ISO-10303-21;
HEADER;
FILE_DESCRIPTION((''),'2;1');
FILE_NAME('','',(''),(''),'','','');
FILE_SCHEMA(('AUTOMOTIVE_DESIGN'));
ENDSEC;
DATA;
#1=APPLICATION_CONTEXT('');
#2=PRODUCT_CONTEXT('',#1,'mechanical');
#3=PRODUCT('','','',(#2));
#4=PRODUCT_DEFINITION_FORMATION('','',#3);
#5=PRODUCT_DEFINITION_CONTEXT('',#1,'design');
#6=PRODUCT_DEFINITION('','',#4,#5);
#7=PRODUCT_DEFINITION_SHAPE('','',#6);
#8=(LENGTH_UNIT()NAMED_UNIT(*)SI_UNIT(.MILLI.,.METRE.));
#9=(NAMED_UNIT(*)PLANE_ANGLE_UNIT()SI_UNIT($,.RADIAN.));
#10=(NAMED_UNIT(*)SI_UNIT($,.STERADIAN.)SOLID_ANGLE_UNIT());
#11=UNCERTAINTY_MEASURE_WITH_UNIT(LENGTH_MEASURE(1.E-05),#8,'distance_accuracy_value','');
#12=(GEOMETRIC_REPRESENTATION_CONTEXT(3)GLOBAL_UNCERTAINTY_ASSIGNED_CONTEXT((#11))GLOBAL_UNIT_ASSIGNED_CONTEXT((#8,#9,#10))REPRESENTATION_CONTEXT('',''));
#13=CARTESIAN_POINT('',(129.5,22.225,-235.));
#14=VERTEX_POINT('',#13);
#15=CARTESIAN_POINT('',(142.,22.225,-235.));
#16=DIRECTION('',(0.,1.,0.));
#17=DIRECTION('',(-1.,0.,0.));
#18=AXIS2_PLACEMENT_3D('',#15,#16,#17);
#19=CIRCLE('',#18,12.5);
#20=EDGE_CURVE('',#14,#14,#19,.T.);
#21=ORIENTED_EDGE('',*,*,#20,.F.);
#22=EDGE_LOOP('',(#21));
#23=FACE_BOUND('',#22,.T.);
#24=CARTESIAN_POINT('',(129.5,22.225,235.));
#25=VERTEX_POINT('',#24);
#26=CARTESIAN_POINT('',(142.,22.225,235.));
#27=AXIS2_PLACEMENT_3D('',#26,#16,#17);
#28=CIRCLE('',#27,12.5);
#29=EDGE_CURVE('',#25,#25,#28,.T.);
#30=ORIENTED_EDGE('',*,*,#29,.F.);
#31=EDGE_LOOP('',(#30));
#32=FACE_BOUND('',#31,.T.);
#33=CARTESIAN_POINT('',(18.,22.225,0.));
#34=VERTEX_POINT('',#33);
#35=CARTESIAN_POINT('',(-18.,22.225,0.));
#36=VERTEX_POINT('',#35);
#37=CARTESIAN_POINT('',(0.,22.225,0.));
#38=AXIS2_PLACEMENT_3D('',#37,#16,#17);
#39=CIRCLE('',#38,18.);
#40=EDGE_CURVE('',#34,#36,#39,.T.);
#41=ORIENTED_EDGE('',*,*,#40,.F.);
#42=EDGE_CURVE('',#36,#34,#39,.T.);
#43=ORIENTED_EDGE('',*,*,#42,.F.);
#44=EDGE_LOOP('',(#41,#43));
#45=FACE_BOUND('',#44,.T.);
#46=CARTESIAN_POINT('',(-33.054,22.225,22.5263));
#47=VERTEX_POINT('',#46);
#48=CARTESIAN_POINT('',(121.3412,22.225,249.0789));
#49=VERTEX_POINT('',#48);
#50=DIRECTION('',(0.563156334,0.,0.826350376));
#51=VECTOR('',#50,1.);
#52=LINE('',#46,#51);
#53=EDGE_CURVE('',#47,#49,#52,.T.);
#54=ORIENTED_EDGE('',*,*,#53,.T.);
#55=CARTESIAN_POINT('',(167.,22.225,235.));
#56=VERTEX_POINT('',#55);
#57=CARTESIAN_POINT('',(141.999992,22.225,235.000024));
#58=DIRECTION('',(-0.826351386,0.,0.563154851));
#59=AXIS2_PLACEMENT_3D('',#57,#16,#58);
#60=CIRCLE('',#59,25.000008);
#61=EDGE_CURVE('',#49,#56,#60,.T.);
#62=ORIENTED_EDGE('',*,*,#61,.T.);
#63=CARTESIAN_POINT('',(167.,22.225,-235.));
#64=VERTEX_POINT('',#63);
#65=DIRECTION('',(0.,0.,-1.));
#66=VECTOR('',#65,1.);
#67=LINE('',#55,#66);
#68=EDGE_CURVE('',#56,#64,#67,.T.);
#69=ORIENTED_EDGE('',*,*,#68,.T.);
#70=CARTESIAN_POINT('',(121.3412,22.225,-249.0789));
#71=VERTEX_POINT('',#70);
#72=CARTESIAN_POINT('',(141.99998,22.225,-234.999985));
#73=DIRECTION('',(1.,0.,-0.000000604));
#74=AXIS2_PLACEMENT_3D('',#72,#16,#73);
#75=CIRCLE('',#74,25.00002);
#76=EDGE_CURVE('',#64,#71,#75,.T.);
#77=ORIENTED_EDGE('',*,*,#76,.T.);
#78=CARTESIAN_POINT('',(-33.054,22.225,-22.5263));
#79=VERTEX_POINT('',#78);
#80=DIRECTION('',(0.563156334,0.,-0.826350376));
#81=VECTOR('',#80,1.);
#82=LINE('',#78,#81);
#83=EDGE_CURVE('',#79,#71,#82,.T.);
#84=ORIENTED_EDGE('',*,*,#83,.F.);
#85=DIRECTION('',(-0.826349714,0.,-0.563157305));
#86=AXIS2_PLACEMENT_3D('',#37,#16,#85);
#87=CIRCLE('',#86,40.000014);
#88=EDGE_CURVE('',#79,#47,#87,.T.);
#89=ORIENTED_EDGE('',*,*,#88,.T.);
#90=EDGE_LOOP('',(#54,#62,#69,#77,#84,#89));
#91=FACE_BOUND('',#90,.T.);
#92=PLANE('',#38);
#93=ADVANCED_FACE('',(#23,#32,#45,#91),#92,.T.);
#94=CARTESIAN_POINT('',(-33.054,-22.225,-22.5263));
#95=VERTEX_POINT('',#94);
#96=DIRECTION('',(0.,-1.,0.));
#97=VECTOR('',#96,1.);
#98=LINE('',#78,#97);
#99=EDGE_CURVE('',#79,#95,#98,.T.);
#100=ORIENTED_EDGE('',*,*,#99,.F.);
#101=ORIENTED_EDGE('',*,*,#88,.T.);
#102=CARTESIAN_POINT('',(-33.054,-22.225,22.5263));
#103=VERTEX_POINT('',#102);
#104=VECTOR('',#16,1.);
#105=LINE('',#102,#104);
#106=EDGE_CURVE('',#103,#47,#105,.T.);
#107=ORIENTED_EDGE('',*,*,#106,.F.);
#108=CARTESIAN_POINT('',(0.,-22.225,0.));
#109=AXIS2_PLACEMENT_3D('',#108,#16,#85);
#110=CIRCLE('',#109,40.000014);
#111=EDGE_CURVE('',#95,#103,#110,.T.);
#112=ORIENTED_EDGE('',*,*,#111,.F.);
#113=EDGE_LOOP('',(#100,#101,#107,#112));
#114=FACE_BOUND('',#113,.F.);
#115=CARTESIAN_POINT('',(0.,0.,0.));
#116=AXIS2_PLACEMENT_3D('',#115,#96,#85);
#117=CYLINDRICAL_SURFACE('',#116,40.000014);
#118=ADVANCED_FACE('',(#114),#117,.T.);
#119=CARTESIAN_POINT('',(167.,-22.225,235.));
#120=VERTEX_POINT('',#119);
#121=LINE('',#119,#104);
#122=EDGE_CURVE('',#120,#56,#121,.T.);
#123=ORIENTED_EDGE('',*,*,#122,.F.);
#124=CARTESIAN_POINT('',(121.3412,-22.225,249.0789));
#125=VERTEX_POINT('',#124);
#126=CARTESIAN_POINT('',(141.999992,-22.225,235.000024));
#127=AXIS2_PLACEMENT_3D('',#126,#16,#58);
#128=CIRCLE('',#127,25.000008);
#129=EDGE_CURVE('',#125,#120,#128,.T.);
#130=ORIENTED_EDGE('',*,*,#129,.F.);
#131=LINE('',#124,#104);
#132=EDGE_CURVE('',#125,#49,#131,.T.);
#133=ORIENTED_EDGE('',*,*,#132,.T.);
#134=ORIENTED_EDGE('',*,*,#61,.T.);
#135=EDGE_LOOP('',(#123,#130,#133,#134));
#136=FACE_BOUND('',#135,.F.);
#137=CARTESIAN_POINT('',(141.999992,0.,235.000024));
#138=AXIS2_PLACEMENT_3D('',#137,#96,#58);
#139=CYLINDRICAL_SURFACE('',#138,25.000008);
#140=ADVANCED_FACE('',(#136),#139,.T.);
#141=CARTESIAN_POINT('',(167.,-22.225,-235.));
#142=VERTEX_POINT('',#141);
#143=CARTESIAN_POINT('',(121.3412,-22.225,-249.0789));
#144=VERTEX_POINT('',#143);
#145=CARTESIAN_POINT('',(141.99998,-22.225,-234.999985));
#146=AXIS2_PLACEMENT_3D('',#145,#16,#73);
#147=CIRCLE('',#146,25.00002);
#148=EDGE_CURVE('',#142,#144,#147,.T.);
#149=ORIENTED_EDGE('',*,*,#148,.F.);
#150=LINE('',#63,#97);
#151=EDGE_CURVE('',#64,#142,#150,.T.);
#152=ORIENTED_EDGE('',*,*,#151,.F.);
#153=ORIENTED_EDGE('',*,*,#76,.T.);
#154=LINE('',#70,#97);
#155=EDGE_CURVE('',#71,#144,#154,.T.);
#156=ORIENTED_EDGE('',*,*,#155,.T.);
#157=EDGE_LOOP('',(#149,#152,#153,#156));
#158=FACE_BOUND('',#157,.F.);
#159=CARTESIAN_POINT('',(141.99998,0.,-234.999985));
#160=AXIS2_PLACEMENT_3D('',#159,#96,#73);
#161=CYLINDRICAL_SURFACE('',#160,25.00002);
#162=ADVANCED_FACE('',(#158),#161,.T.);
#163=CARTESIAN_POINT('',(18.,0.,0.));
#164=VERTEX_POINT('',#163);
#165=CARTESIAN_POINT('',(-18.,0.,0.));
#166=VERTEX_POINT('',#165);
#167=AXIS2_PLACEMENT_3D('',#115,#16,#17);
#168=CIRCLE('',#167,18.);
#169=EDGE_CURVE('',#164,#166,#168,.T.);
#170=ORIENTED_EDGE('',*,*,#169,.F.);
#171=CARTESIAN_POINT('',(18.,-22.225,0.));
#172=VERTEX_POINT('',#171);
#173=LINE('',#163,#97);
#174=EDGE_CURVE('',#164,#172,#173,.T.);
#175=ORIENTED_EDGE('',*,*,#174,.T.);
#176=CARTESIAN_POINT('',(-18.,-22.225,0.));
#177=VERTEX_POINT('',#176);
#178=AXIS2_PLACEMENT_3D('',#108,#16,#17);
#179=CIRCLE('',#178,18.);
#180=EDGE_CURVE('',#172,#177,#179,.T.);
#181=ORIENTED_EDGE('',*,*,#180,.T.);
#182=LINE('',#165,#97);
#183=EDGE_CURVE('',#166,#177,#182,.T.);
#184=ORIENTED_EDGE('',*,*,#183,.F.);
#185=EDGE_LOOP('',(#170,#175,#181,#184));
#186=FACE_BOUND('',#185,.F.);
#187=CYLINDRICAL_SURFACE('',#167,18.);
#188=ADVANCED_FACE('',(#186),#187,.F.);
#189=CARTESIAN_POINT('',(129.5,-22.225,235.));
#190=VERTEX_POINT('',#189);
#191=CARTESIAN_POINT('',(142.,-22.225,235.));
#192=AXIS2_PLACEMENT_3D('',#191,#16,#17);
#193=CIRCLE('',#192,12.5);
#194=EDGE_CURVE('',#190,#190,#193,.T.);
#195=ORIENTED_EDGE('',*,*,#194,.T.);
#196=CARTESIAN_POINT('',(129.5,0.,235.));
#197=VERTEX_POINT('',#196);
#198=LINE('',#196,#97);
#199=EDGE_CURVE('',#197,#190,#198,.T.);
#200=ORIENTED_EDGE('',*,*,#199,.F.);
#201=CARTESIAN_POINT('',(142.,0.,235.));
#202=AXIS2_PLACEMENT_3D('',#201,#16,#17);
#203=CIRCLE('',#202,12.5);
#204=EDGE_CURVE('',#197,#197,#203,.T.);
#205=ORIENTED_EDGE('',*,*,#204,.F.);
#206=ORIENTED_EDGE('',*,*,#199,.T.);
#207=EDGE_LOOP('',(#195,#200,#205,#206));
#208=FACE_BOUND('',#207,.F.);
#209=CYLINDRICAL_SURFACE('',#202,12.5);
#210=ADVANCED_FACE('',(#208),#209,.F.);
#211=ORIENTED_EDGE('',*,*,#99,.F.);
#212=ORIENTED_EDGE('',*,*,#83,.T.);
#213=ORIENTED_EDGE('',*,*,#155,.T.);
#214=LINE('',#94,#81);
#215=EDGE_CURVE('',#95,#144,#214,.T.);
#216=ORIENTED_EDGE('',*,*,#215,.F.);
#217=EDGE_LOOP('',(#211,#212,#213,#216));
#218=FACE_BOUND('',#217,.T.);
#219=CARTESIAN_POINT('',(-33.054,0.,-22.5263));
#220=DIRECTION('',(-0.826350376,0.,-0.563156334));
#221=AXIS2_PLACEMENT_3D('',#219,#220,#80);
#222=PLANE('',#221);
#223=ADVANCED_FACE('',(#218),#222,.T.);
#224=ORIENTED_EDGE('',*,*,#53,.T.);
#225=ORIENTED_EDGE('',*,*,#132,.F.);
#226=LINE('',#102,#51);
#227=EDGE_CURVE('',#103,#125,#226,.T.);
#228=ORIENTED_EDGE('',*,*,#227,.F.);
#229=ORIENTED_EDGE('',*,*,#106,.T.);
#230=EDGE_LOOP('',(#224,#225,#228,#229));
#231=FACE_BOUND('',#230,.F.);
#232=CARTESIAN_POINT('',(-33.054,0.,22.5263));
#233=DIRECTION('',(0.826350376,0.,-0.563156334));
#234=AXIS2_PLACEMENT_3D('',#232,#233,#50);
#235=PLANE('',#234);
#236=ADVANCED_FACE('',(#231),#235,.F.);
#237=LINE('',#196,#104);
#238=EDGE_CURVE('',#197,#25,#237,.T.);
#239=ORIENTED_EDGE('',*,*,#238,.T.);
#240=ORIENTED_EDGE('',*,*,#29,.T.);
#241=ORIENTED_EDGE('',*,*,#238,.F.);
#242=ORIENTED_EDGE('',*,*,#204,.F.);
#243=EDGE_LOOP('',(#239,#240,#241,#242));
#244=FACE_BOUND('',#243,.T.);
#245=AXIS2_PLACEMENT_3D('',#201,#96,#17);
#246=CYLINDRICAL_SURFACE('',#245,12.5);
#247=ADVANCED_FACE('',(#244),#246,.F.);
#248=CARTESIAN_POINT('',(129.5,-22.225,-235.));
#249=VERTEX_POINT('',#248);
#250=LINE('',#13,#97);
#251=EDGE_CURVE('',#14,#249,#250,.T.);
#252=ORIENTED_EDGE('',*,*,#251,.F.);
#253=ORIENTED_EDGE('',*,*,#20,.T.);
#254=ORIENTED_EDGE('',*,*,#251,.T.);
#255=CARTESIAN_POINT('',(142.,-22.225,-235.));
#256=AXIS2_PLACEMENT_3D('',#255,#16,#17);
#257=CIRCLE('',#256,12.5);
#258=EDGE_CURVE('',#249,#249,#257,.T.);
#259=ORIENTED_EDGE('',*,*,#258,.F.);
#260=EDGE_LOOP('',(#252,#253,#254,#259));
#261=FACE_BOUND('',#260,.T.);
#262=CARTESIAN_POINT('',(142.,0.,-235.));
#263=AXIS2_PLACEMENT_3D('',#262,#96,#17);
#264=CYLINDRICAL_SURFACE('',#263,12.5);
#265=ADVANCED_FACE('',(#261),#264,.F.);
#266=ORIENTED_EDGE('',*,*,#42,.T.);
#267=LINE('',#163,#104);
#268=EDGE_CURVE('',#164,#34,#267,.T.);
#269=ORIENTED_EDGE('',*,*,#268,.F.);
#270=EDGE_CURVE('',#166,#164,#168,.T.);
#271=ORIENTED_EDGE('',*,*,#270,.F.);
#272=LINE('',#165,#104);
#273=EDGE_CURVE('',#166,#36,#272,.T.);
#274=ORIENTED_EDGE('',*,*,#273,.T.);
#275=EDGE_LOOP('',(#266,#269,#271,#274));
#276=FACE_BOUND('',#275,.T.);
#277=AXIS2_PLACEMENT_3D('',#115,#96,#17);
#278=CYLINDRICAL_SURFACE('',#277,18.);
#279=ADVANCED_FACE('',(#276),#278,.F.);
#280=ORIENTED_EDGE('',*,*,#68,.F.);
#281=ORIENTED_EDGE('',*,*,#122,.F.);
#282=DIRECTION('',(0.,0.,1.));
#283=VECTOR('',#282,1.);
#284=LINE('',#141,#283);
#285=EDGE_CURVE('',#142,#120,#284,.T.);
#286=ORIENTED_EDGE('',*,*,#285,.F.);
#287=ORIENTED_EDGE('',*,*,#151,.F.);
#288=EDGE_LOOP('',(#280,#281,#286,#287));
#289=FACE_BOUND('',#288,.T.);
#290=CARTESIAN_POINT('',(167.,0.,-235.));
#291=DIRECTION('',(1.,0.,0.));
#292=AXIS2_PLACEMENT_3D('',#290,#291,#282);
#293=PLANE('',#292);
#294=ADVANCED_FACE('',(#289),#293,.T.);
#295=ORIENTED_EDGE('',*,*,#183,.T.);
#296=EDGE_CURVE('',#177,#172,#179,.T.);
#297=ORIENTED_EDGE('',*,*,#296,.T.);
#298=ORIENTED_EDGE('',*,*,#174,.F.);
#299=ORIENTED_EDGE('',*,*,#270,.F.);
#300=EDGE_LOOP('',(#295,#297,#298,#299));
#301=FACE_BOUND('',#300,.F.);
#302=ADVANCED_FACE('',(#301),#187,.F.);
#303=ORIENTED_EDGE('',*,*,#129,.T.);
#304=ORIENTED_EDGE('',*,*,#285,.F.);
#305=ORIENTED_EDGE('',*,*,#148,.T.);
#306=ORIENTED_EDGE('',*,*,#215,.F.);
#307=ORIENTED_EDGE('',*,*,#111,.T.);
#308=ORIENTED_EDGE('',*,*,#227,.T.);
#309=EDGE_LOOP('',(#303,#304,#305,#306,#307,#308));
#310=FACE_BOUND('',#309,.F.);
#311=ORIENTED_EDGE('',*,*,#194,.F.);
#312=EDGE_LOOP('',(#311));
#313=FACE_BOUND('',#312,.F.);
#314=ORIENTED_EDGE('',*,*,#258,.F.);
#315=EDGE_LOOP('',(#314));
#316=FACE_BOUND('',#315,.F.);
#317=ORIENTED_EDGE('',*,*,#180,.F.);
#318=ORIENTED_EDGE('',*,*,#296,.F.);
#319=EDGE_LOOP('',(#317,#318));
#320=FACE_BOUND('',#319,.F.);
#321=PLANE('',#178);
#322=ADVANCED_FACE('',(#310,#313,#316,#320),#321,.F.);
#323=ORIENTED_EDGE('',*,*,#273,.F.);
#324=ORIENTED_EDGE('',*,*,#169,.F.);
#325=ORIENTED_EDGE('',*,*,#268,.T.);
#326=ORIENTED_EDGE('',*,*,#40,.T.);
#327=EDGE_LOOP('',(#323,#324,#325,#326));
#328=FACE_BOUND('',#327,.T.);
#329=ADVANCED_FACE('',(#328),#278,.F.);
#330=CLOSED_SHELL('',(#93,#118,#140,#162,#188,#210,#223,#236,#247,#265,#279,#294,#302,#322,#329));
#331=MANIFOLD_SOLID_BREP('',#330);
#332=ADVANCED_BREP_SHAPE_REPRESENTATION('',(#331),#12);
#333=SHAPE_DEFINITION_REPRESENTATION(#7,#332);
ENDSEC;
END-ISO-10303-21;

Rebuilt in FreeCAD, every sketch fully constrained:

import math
import FreeCAD as App
import Part
import Sketcher

doc = App.newDocument("Part")
body = doc.addObject("PartDesign::Body", "Body")

# Sketch on XZ plane
sketch1 = body.newObject("Sketcher::SketchObject", "Sketch")
sketch1.AttachmentSupport = (doc.getObject("XZ_Plane"), [""])
sketch1.MapMode = "FlatFace"
sketch1.addGeometry([
    Part.ArcOfCircle(Part.Circle(App.Vector(0, 0, 0), App.Vector(0, 0, 1), 40), math.radians(146), math.radians(214)),  # 0
    Part.LineSegment(App.Vector(-33, 23, 0), App.Vector(121, 249, 0)),  # 1
    Part.ArcOfCircle(Part.Circle(App.Vector(142, 235, 0), App.Vector(0, 0, 1), 25), math.radians(0), math.radians(146)),  # 2
    Part.LineSegment(App.Vector(167, 235, 0), App.Vector(167, -235, 0)),  # 3
    Part.ArcOfCircle(Part.Circle(App.Vector(142, -235, 0), App.Vector(0, 0, 1), 25), math.radians(-146), math.radians(0)),  # 4
    Part.LineSegment(App.Vector(121, -249, 0), App.Vector(-33, -23, 0)),  # 5
    Part.Circle(App.Vector(142, -235, 0), App.Vector(0, 0, 1), 12),  # 6
    Part.Circle(App.Vector(0, 0, 0), App.Vector(0, 0, 1), 18),  # 7
    Part.Circle(App.Vector(142, 235, 0), App.Vector(0, 0, 1), 12),  # 8
], False)
sketch1.addConstraint([
    Sketcher.Constraint("Tangent", 0, 1, 1, 1),
    Sketcher.Constraint("Tangent", 1, 2, 2, 2),
    Sketcher.Constraint("Tangent", 2, 1, 3, 1),
    Sketcher.Constraint("Tangent", 3, 2, 4, 2),
    Sketcher.Constraint("Tangent", 4, 1, 5, 1),
    Sketcher.Constraint("Tangent", 5, 2, 0, 2),
    Sketcher.Constraint("Vertical", 3),
    Sketcher.Constraint("Coincident", 0, 3, -1, 1),
    Sketcher.Constraint("Coincident", 7, 3, -1, 1),
    Sketcher.Constraint("Coincident", 6, 3, 4, 3),
    Sketcher.Constraint("Coincident", 8, 3, 2, 3),
    Sketcher.Constraint("Equal", 2, 4),
    Sketcher.Constraint("Equal", 6, 8),
    Sketcher.Constraint("Equal", 1, 5),
    Sketcher.Constraint("Diameter", 6, 25.0),
    Sketcher.Constraint("Diameter", 7, 36.0),
    Sketcher.Constraint("Radius", 0, 40.0),
    Sketcher.Constraint("Radius", 2, 25.0),
    Sketcher.Constraint("DistanceY", 3, 2, 3, 1, 470.0),
    Sketcher.Constraint("DistanceX", -1, 1, 2, 3, 142.0),
])
pad1 = body.newObject("PartDesign::Pad", "Pad")
pad1.Profile = sketch1
pad1.Length = 44.45
pad1.Midplane = True

doc.recompute()
